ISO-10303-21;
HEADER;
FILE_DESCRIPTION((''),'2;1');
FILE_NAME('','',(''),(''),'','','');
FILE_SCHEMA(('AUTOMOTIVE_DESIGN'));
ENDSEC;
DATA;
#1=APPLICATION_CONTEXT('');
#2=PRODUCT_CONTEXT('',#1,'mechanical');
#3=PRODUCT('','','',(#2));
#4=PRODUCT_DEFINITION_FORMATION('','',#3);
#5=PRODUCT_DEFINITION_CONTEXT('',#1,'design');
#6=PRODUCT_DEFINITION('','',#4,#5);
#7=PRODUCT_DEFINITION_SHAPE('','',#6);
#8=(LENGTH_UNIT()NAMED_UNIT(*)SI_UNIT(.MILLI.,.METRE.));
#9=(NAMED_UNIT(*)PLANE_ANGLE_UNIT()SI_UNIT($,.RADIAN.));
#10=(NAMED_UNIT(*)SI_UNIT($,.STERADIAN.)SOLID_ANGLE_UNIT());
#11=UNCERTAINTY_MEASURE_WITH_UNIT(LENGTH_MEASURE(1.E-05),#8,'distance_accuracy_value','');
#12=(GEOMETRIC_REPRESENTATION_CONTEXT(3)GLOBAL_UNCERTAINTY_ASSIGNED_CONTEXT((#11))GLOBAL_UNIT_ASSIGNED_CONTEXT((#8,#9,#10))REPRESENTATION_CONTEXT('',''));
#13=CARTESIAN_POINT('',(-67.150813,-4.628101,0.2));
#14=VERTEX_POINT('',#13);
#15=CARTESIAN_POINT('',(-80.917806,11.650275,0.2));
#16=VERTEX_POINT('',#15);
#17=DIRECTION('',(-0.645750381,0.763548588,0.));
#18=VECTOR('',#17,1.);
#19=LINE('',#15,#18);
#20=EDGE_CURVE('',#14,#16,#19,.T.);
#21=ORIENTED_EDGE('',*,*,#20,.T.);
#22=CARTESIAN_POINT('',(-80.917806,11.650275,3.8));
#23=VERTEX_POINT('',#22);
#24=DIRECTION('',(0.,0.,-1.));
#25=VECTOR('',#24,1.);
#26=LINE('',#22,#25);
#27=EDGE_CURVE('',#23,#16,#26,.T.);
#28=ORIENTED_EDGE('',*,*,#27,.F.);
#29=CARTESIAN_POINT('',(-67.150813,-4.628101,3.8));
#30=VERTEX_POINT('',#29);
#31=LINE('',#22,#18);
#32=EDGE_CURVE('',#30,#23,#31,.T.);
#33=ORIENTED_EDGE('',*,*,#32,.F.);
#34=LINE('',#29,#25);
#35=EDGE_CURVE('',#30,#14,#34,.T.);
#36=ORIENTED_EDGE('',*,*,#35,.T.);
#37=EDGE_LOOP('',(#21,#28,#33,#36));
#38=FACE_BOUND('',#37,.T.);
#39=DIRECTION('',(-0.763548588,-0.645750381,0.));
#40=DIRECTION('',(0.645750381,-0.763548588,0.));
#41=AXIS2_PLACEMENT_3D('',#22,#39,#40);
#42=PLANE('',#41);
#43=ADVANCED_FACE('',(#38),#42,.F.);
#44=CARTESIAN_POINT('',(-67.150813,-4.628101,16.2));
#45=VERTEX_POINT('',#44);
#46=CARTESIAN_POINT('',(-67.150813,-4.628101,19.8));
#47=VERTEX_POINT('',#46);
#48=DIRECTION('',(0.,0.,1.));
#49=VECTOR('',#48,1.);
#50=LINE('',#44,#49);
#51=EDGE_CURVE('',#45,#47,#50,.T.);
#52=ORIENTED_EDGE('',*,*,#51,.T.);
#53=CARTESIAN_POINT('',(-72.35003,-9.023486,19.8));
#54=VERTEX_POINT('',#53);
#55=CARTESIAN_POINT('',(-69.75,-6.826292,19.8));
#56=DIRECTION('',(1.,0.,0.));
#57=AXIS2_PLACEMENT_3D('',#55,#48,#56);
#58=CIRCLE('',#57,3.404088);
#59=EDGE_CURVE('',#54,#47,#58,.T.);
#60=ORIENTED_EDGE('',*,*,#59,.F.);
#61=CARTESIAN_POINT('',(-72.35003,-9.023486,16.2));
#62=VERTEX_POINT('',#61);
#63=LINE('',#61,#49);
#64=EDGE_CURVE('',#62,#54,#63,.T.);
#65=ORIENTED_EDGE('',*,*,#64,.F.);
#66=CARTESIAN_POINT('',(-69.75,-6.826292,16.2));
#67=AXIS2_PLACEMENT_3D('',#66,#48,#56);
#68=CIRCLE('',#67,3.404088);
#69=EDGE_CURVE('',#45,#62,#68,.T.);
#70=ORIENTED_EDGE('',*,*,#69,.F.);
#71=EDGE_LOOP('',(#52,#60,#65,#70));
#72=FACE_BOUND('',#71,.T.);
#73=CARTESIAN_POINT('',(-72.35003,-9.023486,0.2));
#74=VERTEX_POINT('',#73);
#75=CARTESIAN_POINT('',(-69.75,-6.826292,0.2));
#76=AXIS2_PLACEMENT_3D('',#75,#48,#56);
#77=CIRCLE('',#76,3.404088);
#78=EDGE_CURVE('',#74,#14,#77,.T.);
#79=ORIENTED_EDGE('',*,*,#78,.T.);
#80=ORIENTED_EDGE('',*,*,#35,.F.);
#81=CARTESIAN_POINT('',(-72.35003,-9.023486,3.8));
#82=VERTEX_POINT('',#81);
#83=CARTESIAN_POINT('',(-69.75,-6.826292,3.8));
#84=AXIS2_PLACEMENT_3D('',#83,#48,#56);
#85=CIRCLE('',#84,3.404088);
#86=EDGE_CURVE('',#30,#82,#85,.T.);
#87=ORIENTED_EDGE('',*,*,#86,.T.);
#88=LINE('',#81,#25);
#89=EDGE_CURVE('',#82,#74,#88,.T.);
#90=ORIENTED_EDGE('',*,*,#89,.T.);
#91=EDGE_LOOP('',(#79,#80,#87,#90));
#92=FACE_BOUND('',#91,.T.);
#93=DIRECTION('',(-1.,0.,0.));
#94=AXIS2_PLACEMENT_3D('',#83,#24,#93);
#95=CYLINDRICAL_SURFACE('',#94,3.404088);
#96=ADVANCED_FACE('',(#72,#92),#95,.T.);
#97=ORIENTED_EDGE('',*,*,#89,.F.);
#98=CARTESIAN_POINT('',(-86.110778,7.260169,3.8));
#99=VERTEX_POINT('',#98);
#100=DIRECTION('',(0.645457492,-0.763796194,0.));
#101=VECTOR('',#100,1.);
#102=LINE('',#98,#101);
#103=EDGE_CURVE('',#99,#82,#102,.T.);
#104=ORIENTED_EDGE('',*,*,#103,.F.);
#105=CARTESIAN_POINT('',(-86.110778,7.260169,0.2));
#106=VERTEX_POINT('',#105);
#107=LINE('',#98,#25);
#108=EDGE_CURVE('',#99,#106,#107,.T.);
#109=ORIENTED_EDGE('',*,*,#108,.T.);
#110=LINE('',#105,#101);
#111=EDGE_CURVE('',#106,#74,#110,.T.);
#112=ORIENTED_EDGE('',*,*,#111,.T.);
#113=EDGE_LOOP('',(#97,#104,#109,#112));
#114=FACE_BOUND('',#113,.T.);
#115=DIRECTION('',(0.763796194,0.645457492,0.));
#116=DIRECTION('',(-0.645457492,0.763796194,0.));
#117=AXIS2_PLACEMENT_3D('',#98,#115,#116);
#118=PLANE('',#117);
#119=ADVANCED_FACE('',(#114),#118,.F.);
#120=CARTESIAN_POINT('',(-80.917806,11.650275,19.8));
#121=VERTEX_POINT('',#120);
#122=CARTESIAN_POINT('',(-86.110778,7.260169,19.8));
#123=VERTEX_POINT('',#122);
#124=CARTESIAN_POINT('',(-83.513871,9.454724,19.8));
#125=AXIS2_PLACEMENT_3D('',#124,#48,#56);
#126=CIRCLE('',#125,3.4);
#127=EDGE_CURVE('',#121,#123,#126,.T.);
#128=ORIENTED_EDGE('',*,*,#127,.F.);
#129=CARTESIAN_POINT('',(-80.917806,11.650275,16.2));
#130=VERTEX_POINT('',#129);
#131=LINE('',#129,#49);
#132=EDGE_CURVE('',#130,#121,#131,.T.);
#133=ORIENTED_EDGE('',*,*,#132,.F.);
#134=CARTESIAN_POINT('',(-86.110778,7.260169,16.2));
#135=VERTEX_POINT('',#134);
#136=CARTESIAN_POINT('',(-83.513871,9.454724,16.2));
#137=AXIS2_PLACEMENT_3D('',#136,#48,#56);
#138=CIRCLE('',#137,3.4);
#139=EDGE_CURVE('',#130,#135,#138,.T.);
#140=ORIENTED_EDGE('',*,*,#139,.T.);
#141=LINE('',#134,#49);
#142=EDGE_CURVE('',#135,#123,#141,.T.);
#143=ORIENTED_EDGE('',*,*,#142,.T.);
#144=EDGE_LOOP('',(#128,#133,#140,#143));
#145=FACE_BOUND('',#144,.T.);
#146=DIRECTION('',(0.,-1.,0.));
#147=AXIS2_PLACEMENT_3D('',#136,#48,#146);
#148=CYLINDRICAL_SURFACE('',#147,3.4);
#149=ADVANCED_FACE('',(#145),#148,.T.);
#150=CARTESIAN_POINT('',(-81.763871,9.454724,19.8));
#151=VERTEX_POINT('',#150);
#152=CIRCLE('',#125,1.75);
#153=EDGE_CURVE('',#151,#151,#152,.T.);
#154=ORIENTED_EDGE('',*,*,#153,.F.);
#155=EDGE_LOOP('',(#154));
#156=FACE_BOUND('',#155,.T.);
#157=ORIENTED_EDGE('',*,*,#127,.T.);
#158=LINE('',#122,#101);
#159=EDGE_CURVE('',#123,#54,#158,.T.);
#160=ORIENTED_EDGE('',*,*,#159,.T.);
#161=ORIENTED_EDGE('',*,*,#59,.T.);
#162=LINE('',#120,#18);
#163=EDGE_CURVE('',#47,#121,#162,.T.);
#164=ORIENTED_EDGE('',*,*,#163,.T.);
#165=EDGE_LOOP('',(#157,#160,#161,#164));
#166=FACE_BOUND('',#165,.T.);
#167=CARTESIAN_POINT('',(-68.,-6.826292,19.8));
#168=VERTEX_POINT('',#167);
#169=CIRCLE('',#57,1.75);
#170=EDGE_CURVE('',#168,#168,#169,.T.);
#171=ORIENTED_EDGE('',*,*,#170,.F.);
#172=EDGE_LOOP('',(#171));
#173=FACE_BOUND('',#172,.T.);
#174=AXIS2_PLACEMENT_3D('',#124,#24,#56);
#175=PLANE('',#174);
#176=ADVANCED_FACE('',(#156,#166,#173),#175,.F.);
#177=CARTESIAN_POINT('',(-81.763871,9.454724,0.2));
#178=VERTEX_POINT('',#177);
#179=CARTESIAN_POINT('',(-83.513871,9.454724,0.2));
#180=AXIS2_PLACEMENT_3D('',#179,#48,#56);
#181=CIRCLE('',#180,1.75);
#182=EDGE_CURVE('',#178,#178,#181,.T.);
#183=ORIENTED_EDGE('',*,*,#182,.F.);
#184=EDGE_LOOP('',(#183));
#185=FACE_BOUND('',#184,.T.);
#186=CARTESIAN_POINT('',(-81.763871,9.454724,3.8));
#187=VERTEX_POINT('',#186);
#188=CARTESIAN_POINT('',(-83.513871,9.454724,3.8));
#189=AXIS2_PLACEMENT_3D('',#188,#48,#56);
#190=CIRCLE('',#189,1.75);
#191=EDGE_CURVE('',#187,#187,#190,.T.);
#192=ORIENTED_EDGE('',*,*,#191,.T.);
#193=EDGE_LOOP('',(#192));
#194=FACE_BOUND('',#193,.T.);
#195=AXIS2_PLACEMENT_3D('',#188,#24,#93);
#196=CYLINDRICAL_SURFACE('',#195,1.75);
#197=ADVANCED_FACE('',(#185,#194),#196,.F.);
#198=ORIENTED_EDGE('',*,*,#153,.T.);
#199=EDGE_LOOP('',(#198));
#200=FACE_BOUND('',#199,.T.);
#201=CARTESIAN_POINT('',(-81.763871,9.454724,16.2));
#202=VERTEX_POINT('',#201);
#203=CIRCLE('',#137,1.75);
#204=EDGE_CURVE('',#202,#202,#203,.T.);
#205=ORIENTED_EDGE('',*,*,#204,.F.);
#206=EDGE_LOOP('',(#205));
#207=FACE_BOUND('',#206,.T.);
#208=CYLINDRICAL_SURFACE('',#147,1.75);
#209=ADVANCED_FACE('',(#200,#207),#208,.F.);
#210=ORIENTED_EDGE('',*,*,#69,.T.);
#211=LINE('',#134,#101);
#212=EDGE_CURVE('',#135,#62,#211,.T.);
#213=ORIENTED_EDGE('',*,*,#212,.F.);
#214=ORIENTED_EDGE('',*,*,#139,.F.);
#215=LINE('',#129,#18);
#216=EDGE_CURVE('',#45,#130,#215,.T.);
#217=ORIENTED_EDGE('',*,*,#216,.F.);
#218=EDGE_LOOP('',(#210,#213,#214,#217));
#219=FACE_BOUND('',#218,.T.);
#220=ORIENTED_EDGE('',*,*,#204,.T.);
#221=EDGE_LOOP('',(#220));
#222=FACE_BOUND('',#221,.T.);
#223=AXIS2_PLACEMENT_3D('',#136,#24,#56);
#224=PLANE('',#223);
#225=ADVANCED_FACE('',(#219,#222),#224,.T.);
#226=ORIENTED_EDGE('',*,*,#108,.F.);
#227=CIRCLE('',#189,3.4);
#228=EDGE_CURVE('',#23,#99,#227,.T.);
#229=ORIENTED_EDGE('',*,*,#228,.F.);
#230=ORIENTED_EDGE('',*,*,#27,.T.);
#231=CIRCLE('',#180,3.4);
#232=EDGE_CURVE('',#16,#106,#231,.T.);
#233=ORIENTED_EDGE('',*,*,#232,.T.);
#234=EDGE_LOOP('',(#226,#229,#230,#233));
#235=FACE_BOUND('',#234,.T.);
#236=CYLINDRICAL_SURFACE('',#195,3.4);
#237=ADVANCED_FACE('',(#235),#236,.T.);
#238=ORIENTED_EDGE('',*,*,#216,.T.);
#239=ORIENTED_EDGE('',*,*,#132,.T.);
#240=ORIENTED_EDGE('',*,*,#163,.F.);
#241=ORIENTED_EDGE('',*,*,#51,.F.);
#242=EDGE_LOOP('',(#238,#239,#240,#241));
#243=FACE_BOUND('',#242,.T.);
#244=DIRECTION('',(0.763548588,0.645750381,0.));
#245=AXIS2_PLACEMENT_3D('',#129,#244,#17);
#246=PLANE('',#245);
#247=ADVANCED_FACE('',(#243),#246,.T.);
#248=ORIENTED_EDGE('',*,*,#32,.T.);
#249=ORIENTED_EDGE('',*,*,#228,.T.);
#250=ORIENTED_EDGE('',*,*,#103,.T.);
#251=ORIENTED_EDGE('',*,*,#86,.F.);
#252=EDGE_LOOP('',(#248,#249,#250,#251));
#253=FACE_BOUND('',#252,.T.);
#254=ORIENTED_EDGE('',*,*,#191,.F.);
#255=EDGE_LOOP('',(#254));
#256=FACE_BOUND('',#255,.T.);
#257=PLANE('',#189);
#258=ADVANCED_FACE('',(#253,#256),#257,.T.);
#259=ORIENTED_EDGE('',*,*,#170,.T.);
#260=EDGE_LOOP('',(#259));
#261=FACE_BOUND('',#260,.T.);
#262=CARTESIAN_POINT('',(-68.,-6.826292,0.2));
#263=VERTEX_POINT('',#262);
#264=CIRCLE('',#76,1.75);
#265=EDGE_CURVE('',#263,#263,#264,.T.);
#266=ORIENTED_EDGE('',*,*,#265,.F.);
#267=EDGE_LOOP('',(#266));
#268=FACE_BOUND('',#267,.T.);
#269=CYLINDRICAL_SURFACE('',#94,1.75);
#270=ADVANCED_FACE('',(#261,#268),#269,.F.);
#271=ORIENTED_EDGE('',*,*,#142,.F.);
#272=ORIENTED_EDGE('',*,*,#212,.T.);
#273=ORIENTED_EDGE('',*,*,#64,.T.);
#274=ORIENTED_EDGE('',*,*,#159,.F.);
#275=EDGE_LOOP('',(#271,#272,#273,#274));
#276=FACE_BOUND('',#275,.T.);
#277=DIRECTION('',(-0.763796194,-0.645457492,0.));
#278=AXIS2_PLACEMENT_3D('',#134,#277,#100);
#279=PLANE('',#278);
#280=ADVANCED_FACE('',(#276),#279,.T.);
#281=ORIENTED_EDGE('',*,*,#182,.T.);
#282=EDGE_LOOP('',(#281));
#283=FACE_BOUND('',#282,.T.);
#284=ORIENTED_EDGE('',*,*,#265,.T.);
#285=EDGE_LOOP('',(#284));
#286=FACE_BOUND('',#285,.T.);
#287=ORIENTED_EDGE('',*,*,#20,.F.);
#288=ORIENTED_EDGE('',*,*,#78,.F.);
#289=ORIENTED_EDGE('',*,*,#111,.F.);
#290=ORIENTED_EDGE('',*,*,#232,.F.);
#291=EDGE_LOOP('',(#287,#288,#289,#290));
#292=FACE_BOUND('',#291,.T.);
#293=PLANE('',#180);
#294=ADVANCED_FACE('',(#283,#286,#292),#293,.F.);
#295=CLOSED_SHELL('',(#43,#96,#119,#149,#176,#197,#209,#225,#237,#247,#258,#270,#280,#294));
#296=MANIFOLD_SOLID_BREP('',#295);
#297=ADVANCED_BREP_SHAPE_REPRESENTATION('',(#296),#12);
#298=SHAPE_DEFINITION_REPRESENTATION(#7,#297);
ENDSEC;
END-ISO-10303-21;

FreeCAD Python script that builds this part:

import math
import FreeCAD as App
import Part
import Sketcher

V = App.Vector
Q = App.Units.Quantity

doc = App.newDocument("Part")
body = doc.addObject("PartDesign::Body", "Body")

# Sketch on XY plane
sketch1 = doc.addObject("Sketcher::SketchObject", "Sketch")
body.addObject(sketch1)
sketch1.AttachmentSupport = (doc.XY_Plane, [""])
sketch1.MapMode = "FlatFace"
sketch1.AttachmentOffset = App.Placement(V(0, 0, 0.2), App.Rotation())
sketch1.addGeometry(Part.LineSegment(V(-67.150813, -4.628101, 0), V(-80.917806, 11.650275, 0)), False)
sketch1.addGeometry(Part.ArcOfCircle(Part.Circle(V(-83.513871, 9.454724, 0), V(0, 0, 1), 3.4), math.radians(40.22196), math.radians(220.199985)), False)
sketch1.addGeometry(Part.LineSegment(V(-86.110778, 7.260169, 0), V(-72.35003, -9.023486, 0)), False)
sketch1.addGeometry(Part.ArcOfCircle(Part.Circle(V(-69.75, -6.826292, 0), V(0, 0, 1), 3.404088), math.radians(-139.800015), math.radians(40.22196)), False)
sketch1.addGeometry(Part.Circle(V(-69.75, -6.826292, 0), V(0, 0, 1), 1.75), False)
sketch1.addGeometry(Part.Circle(V(-83.513871, 9.454724, 0), V(0, 0, 1), 1.75), False)
sketch1.addConstraint(Sketcher.Constraint("Tangent", 0, 2, 1, 1))
sketch1.addConstraint(Sketcher.Constraint("Tangent", 1, 2, 2, 1))
sketch1.addConstraint(Sketcher.Constraint("Tangent", 2, 2, 3, 1))
sketch1.addConstraint(Sketcher.Constraint("Tangent", 3, 2, 0, 1))
sketch1.addConstraint(Sketcher.Constraint("Coincident", 4, 3, 3, 3))
sketch1.addConstraint(Sketcher.Constraint("Coincident", 5, 3, 1, 3))
sketch1.addConstraint(Sketcher.Constraint("Equal", 4, 5))
sketch1.addConstraint(Sketcher.Constraint("Diameter", 4, 3.5))
sketch1.addConstraint(Sketcher.Constraint("Radius", 1, 3.4))
sketch1.addConstraint(Sketcher.Constraint("Angle", 2, Q("-49.800015 deg")))
sketch1.addConstraint(Sketcher.Constraint("DistanceX", 3, 3, -1, 1, 69.75))
sketch1.addConstraint(Sketcher.Constraint("Radius", 3, 3.404088))
sketch1.addConstraint(Sketcher.Constraint("DistanceY", 3, 2, -1, 1, 4.628101))
sketch1.addConstraint(Sketcher.Constraint("Distance", 0, 21.319372))
pad1 = doc.addObject("PartDesign::Pad", "Pad")
body.addObject(pad1)
pad1.Profile = sketch1
pad1.Length = 3.6

# Sketch on XY plane
sketch2 = doc.addObject("Sketcher::SketchObject", "Sketch001")
body.addObject(sketch2)
sketch2.AttachmentSupport = (doc.XY_Plane, [""])
sketch2.MapMode = "FlatFace"
sketch2.AttachmentOffset = App.Placement(V(0, 0, 3.8), App.Rotation())
sketch2.addGeometry(Part.Circle(V(-69.75, -6.826292, 0), V(0, 0, 1), 3.404088), False)
sketch2.addGeometry(Part.Circle(V(-69.75, -6.826292, 0), V(0, 0, 1), 1.75), False)
sketch2.addConstraint(Sketcher.Constraint("Coincident", 1, 3, 0, 3))
sketch2.addConstraint(Sketcher.Constraint("Diameter", 1, 3.5))
sketch2.addConstraint(Sketcher.Constraint("DistanceX", 0, 3, -1, 1, 69.75))
sketch2.addConstraint(Sketcher.Constraint("Diameter", 0, 6.808177))
sketch2.addConstraint(Sketcher.Constraint("DistanceY", 0, 3, -1, 1, 6.826292))
pad2 = doc.addObject("PartDesign::Pad", "Pad001")
body.addObject(pad2)
pad2.Profile = sketch2
pad2.Length = 6.2
doc.recompute()

datumplane = doc.addObject("PartDesign::Plane", "DatumPlane")
body.addObject(datumplane)
datumplane.AttachmentSupport = (doc.XY_Plane, [""])
datumplane.MapMode = "FlatFace"
datumplane.AttachmentOffset = App.Placement(V(0, 0, 10), App.Rotation())
mirrored = doc.addObject("PartDesign::Mirrored", "Mirrored")
body.addObject(mirrored)
mirrored.Originals = [pad2]
mirrored.MirrorPlane = (datumplane, [""])
body.Tip = mirrored
doc.recompute()

datumplane2 = doc.addObject("PartDesign::Plane", "DatumPlane001")
body.addObject(datumplane2)
datumplane2.AttachmentSupport = (doc.XY_Plane, [""])
datumplane2.MapMode = "FlatFace"
datumplane2.AttachmentOffset = App.Placement(V(0, 0, 10), App.Rotation())
mirrored2 = doc.addObject("PartDesign::Mirrored", "Mirrored001")
body.addObject(mirrored2)
mirrored2.Originals = [pad1]
mirrored2.MirrorPlane = (datumplane2, [""])
body.Tip = mirrored2

doc.recompute()
